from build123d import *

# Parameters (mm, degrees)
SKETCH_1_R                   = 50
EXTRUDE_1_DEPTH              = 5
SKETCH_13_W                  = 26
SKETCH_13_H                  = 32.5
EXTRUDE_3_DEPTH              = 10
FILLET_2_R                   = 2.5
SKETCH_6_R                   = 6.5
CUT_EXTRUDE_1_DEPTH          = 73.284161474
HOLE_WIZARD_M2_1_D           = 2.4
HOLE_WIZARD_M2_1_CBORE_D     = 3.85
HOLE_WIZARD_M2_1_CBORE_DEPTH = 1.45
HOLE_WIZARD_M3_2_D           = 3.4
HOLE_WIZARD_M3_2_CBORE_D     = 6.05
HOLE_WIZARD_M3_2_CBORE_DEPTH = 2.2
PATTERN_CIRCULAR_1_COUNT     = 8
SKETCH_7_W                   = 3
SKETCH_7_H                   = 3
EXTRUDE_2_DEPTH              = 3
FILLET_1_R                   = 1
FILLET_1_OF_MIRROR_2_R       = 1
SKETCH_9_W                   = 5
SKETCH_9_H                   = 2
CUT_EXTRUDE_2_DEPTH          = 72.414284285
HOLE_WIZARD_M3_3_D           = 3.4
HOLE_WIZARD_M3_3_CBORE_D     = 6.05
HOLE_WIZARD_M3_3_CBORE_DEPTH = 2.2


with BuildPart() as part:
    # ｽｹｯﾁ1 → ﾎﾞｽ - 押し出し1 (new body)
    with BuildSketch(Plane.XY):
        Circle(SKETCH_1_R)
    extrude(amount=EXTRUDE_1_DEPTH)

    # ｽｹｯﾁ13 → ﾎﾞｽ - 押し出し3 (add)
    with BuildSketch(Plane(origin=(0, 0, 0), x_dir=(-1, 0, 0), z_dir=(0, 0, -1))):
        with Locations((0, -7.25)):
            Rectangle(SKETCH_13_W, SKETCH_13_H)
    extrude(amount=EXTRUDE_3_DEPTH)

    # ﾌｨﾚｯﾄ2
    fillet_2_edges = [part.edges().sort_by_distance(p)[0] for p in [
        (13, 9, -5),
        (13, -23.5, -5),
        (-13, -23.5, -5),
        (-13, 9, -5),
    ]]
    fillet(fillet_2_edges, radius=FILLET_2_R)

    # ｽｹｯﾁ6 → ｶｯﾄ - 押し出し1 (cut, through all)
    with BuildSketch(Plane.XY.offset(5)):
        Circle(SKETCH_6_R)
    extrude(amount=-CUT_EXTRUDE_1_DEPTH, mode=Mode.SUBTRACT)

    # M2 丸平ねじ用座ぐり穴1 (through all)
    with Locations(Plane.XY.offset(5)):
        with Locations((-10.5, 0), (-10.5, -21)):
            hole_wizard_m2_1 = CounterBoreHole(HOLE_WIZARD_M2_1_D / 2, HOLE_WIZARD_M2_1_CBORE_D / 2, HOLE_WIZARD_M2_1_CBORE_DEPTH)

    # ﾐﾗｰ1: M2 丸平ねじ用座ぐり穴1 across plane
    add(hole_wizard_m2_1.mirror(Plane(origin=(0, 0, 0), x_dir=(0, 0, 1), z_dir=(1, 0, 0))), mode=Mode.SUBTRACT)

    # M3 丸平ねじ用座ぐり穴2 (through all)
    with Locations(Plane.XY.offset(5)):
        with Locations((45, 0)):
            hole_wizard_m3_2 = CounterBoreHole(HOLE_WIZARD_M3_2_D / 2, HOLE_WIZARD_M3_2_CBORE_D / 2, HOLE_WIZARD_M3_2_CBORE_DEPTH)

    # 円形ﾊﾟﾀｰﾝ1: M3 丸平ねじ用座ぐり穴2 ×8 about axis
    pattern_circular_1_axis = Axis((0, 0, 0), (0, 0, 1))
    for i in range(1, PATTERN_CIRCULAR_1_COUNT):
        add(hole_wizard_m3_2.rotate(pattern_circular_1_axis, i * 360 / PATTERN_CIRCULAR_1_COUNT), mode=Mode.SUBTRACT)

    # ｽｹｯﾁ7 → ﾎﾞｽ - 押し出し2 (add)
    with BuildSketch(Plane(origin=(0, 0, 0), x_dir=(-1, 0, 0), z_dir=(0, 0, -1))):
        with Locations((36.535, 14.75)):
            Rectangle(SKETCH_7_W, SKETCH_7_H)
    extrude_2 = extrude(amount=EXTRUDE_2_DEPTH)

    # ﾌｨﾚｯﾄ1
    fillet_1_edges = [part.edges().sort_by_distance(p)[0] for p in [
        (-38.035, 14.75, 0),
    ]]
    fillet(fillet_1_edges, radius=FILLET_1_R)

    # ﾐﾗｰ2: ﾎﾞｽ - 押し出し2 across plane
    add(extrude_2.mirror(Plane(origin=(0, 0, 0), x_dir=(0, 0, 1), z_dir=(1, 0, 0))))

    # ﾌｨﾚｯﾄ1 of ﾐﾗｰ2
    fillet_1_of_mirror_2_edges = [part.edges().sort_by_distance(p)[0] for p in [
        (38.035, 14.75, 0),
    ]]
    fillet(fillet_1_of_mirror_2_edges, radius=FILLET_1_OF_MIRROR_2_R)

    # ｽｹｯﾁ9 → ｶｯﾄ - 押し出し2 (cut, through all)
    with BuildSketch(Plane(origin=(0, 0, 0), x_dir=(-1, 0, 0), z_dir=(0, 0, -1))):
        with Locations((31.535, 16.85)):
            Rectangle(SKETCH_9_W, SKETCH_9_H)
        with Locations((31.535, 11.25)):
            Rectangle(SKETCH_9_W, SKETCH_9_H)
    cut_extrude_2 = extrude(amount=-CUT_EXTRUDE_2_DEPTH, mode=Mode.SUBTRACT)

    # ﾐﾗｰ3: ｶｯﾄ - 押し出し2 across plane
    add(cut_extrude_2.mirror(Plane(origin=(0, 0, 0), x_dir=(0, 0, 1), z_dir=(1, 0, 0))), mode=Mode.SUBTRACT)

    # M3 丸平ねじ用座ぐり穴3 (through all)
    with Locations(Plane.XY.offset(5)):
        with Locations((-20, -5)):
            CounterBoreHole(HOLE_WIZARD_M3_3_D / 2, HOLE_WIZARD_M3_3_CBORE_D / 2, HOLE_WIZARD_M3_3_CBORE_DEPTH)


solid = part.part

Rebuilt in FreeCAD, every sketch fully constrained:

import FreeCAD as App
import Part
import Sketcher
Q = App.Units.Quantity


def edges_at(feature, points):
    """Names of the edges that pass closest to the given points."""
    edges = feature.Shape.Edges
    near = lambda p: min(range(len(edges)), key=lambda i: edges[i].distToShape(Part.Vertex(*p))[0])
    return sorted({f"Edge{near(p) + 1}" for p in points})


def add_polygon(sketch, points):
    """Adds a closed chain of lines whose ends are joined by coincident constraints."""
    first, n = sketch.GeometryCount, len(points)
    for a, b in zip(points, points[1:] + points[:1]):
        sketch.addGeometry(Part.LineSegment(App.Vector(*a, 0), App.Vector(*b, 0)), False)
    for i in range(n):
        sketch.addConstraint(Sketcher.Constraint("Coincident", first + i, 2, first + (i + 1) % n, 1))

doc = App.newDocument("Part")
body = doc.addObject("PartDesign::Body", "Body")

sketch1 = doc.addObject("Sketcher::SketchObject", "Sketch")
body.addObject(sketch1)
sketch1.AttachmentSupport = (doc.XY_Plane, [""])
sketch1.MapMode = "FlatFace"
sketch1.addGeometry(Part.Circle(App.Vector(0, 0, 0), App.Vector(0, 0, 1), 50), False)
sketch1.addConstraint(Sketcher.Constraint("Coincident", 0, 3, -1, 1))
sketch1.addConstraint(Sketcher.Constraint("Diameter", 0, Q("100 mm")))
pad1 = doc.addObject("PartDesign::Pad", "Pad")
body.addObject(pad1)
pad1.Profile = sketch1
pad1.Length = 5

sketch2 = doc.addObject("Sketcher::SketchObject", "Sketch001")
body.addObject(sketch2)
sketch2.AttachmentSupport = (doc.XY_Plane, [""])
sketch2.MapMode = "FlatFace"
add_polygon(sketch2, [(13, 9), (13, -24), (-13, -24), (-13, 9)])
sketch2.addConstraint(Sketcher.Constraint("Vertical", 0))
sketch2.addConstraint(Sketcher.Constraint("Horizontal", 1))
sketch2.addConstraint(Sketcher.Constraint("Vertical", 2))
sketch2.addConstraint(Sketcher.Constraint("Horizontal", 3))
sketch2.addConstraint(Sketcher.Constraint("DistanceX", 1, 2, 1, 1, Q("26 mm")))
sketch2.addConstraint(Sketcher.Constraint("DistanceY", 0, 2, 0, 1, Q("32.5 mm")))
sketch2.addConstraint(Sketcher.Constraint("DistanceX", -1, 1, 0, 2, Q("13 mm")))
sketch2.addConstraint(Sketcher.Constraint("DistanceY", -1, 1, 2, 2, Q("9 mm")))
pad2 = doc.addObject("PartDesign::Pad", "Pad001")
body.addObject(pad2)
pad2.Profile = sketch2
pad2.Length = 10
pad2.Reversed = True
doc.recompute()

fillet = doc.addObject("PartDesign::Fillet", "Fillet")
body.addObject(fillet)
fillet.Base = (pad2, edges_at(pad2, [
    (13, 9, -5),
    (13, -23.5, -5),
    (-13, -23.5, -5),
    (-13, 9, -5),
]))
fillet.Radius = 2.5

sketch3 = doc.addObject("Sketcher::SketchObject", "Sketch002")
body.addObject(sketch3)
sketch3.AttachmentSupport = (doc.XY_Plane, [""])
sketch3.MapMode = "FlatFace"
sketch3.AttachmentOffset = App.Placement(App.Vector(0, 0, 5), App.Rotation())
sketch3.addGeometry(Part.Circle(App.Vector(0, 0, 0), App.Vector(0, 0, 1), 6), False)
sketch3.addConstraint(Sketcher.Constraint("Coincident", 0, 3, -1, 1))
sketch3.addConstraint(Sketcher.Constraint("Diameter", 0, Q("13 mm")))
pocket1 = doc.addObject("PartDesign::Pocket", "Pocket")
body.addObject(pocket1)
pocket1.Profile = sketch3
pocket1.Type = "ThroughAll"

sketch4 = doc.addObject("Sketcher::SketchObject", "Sketch003")
body.addObject(sketch4)
sketch4.AttachmentSupport = (doc.XY_Plane, [""])
sketch4.MapMode = "FlatFace"
sketch4.AttachmentOffset = App.Placement(App.Vector(0, 0, 5), App.Rotation())
sketch4.addGeometry(Part.Circle(App.Vector(-10.5, 0, 0), App.Vector(0, 0, 1), 1.2), False)
sketch4.addGeometry(Part.Circle(App.Vector(-10.5, -21, 0), App.Vector(0, 0, 1), 1.2), False)
sketch4.addConstraint(Sketcher.Constraint("Equal", 0, 1))
sketch4.addConstraint(Sketcher.Constraint("PointOnObject", 0, 3, -1))
sketch4.addConstraint(Sketcher.Constraint("Vertical", 0, 3, 1, 3))
sketch4.addConstraint(Sketcher.Constraint("Diameter", 0, Q("2.4 mm")))
sketch4.addConstraint(Sketcher.Constraint("DistanceY", 1, 3, -1, 1, Q("21 mm")))
sketch4.addConstraint(Sketcher.Constraint("DistanceX", 0, 3, -1, 1, Q("10.5 mm")))
doc.recompute()
hole = doc.addObject("PartDesign::Hole", "Hole")
body.addObject(hole)
hole.Profile = sketch4
hole.ThreadType = "None"
hole.Diameter = 2.4
hole.DepthType = "ThroughAll"
hole.HoleCutType = "Counterbore"
hole.HoleCutDiameter = 3.85
hole.HoleCutDepth = 1.45
doc.recompute()

mirrored = doc.addObject("PartDesign::Mirrored", "Mirrored")
body.addObject(mirrored)
mirrored.Originals = [hole]
mirrored.MirrorPlane = (doc.YZ_Plane, [""])
body.Tip = mirrored

sketch5 = doc.addObject("Sketcher::SketchObject", "Sketch004")
body.addObject(sketch5)
sketch5.AttachmentSupport = (doc.XY_Plane, [""])
sketch5.MapMode = "FlatFace"
sketch5.AttachmentOffset = App.Placement(App.Vector(0, 0, 5), App.Rotation())
sketch5.addGeometry(Part.Circle(App.Vector(45, 0, 0), App.Vector(0, 0, 1), 1.7), False)
sketch5.addConstraint(Sketcher.Constraint("PointOnObject", 0, 3, -1))
sketch5.addConstraint(Sketcher.Constraint("Diameter", 0, Q("3.4 mm")))
sketch5.addConstraint(Sketcher.Constraint("DistanceX", -1, 1, 0, 3, Q("45 mm")))
doc.recompute()
hole2 = doc.addObject("PartDesign::Hole", "Hole001")
body.addObject(hole2)
hole2.Profile = sketch5
hole2.ThreadType = "None"
hole2.Diameter = 3.4
hole2.DepthType = "ThroughAll"
hole2.HoleCutType = "Counterbore"
hole2.HoleCutDiameter = 6.05
hole2.HoleCutDepth = 2.2
doc.recompute()

polarpattern = doc.addObject("PartDesign::PolarPattern", "PolarPattern")
body.addObject(polarpattern)
polarpattern.Originals = [hole2]
polarpattern.Axis = (doc.Z_Axis, [""])
polarpattern.Angle = 360
polarpattern.Occurrences = 8
body.Tip = polarpattern

sketch6 = doc.addObject("Sketcher::SketchObject", "Sketch005")
body.addObject(sketch6)
sketch6.AttachmentSupport = (doc.XY_Plane, [""])
sketch6.MapMode = "FlatFace"
add_polygon(sketch6, [(-35, 16.2), (-35, 13.2), (-38, 13.2), (-38, 16.2)])
sketch6.addConstraint(Sketcher.Constraint("Vertical", 0))
sketch6.addConstraint(Sketcher.Constraint("Horizontal", 1))
sketch6.addConstraint(Sketcher.Constraint("Vertical", 2))
sketch6.addConstraint(Sketcher.Constraint("Horizontal", 3))
sketch6.addConstraint(Sketcher.Constraint("Equal", 3, 0))
sketch6.addConstraint(Sketcher.Constraint("DistanceX", 1, 2, 1, 1, Q("3 mm")))
sketch6.addConstraint(Sketcher.Constraint("DistanceY", -1, 1, 0, 2, Q("13.25 mm")))
sketch6.addConstraint(Sketcher.Constraint("DistanceX", 0, 2, -1, 1, Q("35.035 mm")))
pad3 = doc.addObject("PartDesign::Pad", "Pad002")
body.addObject(pad3)
pad3.Profile = sketch6
pad3.Length = 3
pad3.Reversed = True
doc.recompute()

fillet2 = doc.addObject("PartDesign::Fillet", "Fillet001")
body.addObject(fillet2)
fillet2.Base = (pad3, edges_at(pad3, [(-38.035, 14.75, 0)]))
fillet2.Radius = 1
doc.recompute()

mirrored2 = doc.addObject("PartDesign::Mirrored", "Mirrored001")
body.addObject(mirrored2)
mirrored2.Originals = [pad3]
mirrored2.MirrorPlane = (doc.YZ_Plane, [""])
body.Tip = mirrored2
doc.recompute()

fillet3 = doc.addObject("PartDesign::Fillet", "Fillet002")
body.addObject(fillet3)
fillet3.Base = (mirrored2, edges_at(mirrored2, [(38.035, 14.75, 0)]))
fillet3.Radius = 1

sketch7 = doc.addObject("Sketcher::SketchObject", "Sketch006")
body.addObject(sketch7)
sketch7.AttachmentSupport = (doc.XY_Plane, [""])
sketch7.MapMode = "FlatFace"
add_polygon(sketch7, [(-29, 17.9), (-29, 15.8), (-34, 15.8), (-34, 17.9)])
add_polygon(sketch7, [(-29, 12.2), (-29, 10.2), (-34, 10.2), (-34, 12.2)])
sketch7.addConstraint(Sketcher.Constraint("Vertical", 0))
sketch7.addConstraint(Sketcher.Constraint("Horizontal", 1))
sketch7.addConstraint(Sketcher.Constraint("Vertical", 2))
sketch7.addConstraint(Sketcher.Constraint("Horizontal", 3))
sketch7.addConstraint(Sketcher.Constraint("Vertical", 4))
sketch7.addConstraint(Sketcher.Constraint("Horizontal", 5))
sketch7.addConstraint(Sketcher.Constraint("Vertical", 6))
sketch7.addConstraint(Sketcher.Constraint("Horizontal", 7))
sketch7.addConstraint(Sketcher.Constraint("Vertical", 3, 2, 4, 2))
sketch7.addConstraint(Sketcher.Constraint("Vertical", 2, 2, 5, 2))
sketch7.addConstraint(Sketcher.Constraint("Equal", 2, 4))
sketch7.addConstraint(Sketcher.Constraint("DistanceX", 1, 2, 1, 1, Q("5 mm")))
sketch7.addConstraint(Sketcher.Constraint("DistanceY", 0, 2, 0, 1, Q("2 mm")))
sketch7.addConstraint(Sketcher.Constraint("DistanceY", 4, 2, 0, 2, Q("5.6 mm")))
sketch7.addConstraint(Sketcher.Constraint("DistanceY", -1, 1, 0, 2, Q("15.85 mm")))
sketch7.addConstraint(Sketcher.Constraint("DistanceX", 0, 2, -1, 1, Q("29.035 mm")))
pocket2 = doc.addObject("PartDesign::Pocket", "Pocket001")
body.addObject(pocket2)
pocket2.Profile = sketch7
pocket2.Type = "ThroughAll"
pocket2.Reversed = True
doc.recompute()

mirrored3 = doc.addObject("PartDesign::Mirrored", "Mirrored002")
body.addObject(mirrored3)
mirrored3.Originals = [pocket2]
mirrored3.MirrorPlane = (doc.YZ_Plane, [""])
body.Tip = mirrored3

sketch8 = doc.addObject("Sketcher::SketchObject", "Sketch007")
body.addObject(sketch8)
sketch8.AttachmentSupport = (doc.XY_Plane, [""])
sketch8.MapMode = "FlatFace"
sketch8.AttachmentOffset = App.Placement(App.Vector(0, 0, 5), App.Rotation())
sketch8.addGeometry(Part.Circle(App.Vector(-20, -5, 0), App.Vector(0, 0, 1), 1.7), False)
sketch8.addConstraint(Sketcher.Constraint("Diameter", 0, Q("3.4 mm")))
sketch8.addConstraint(Sketcher.Constraint("DistanceX", 0, 3, -1, 1, Q("20 mm")))
sketch8.addConstraint(Sketcher.Constraint("DistanceY", 0, 3, -1, 1, Q("5 mm")))
doc.recompute()
hole3 = doc.addObject("PartDesign::Hole", "Hole002")
body.addObject(hole3)
hole3.Profile = sketch8
hole3.ThreadType = "None"
hole3.Diameter = 3.4
hole3.DepthType = "ThroughAll"
hole3.HoleCutType = "Counterbore"
hole3.HoleCutDiameter = 6.05
hole3.HoleCutDepth = 2.2

doc.recompute()
